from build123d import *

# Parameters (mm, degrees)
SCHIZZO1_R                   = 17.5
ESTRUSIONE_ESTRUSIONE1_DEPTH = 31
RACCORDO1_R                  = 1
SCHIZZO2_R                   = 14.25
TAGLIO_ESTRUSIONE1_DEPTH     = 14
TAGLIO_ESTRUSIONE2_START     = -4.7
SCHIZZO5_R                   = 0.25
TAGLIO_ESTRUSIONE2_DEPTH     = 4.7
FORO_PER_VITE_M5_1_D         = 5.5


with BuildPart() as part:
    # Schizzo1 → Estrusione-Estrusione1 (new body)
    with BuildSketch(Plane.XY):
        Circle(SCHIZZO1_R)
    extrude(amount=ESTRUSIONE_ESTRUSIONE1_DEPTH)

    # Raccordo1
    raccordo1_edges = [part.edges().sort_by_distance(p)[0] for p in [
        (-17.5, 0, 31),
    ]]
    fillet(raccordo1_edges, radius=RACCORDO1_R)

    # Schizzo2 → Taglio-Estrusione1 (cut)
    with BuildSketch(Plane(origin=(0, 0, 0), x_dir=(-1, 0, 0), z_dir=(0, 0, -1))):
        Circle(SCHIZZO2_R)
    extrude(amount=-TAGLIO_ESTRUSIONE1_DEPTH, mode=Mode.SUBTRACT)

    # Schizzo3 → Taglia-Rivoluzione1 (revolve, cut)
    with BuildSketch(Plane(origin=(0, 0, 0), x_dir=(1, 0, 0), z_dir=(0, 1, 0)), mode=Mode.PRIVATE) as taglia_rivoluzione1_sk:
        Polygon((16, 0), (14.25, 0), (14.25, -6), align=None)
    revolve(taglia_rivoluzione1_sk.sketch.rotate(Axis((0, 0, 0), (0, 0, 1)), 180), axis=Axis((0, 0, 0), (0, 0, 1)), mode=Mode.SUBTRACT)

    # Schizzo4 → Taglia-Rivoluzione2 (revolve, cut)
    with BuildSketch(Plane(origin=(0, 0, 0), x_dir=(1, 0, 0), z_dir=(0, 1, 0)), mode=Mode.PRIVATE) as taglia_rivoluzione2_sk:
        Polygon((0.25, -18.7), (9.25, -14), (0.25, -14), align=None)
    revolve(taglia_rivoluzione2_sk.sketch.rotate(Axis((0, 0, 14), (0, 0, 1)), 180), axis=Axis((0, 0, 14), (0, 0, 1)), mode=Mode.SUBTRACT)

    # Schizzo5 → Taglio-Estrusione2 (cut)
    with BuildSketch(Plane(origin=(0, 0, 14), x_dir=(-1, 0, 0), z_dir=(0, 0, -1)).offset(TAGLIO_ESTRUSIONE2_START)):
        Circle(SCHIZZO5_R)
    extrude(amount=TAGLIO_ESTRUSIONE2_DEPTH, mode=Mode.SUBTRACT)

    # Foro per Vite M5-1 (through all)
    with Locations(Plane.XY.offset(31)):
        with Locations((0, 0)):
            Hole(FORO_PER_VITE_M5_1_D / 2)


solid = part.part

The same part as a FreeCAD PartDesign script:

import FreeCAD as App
import Part
import Sketcher

V = App.Vector


def edges_at(feature, points):
    """Names of the edges that pass closest to the given points."""
    edges = feature.Shape.Edges
    near = lambda p: min(range(len(edges)), key=lambda i: edges[i].distToShape(Part.Vertex(*p))[0])
    return sorted({f"Edge{near(p) + 1}" for p in points})


def add_polygon(sketch, points):
    """Adds a closed chain of lines whose ends are joined by coincident constraints."""
    first, n = sketch.GeometryCount, len(points)
    for a, b in zip(points, points[1:] + points[:1]):
        sketch.addGeometry(Part.LineSegment(App.Vector(*a, 0), App.Vector(*b, 0)), False)
    for i in range(n):
        sketch.addConstraint(Sketcher.Constraint("Coincident", first + i, 2, first + (i + 1) % n, 1))

doc = App.newDocument("Part")
body = doc.addObject("PartDesign::Body", "Body")

# Sketch on XY plane
sketch1 = doc.addObject("Sketcher::SketchObject", "Sketch")
body.addObject(sketch1)
sketch1.AttachmentSupport = (doc.XY_Plane, [""])
sketch1.MapMode = "FlatFace"
sketch1.addGeometry(Part.Circle(V(0, 0, 0), V(0, 0, 1), 18), False)
sketch1.addConstraint([
    Sketcher.Constraint("Coincident", 0, 3, -1, 1),
    Sketcher.Constraint("Diameter", 0, 35.0),
])
pad1 = doc.addObject("PartDesign::Pad", "Pad")
body.addObject(pad1)
pad1.Profile = sketch1
pad1.Length = 31
doc.recompute()

fillet = doc.addObject("PartDesign::Fillet", "Fillet")
body.addObject(fillet)
fillet.Base = (pad1, edges_at(pad1, [(-17.5, 0, 31)]))
fillet.Radius = 1

# Sketch on XY plane
sketch2 = doc.addObject("Sketcher::SketchObject", "Sketch001")
body.addObject(sketch2)
sketch2.AttachmentSupport = (doc.XY_Plane, [""])
sketch2.MapMode = "FlatFace"
sketch2.addGeometry(Part.Circle(V(0, 0, 0), V(0, 0, 1), 14), False)
sketch2.addConstraint([
    Sketcher.Constraint("Coincident", 0, 3, -1, 1),
    Sketcher.Constraint("Diameter", 0, 28.5),
])
pocket1 = doc.addObject("PartDesign::Pocket", "Pocket")
body.addObject(pocket1)
pocket1.Profile = sketch2
pocket1.Length = 14
pocket1.Reversed = True

# Sketch on XZ plane
sketch3 = doc.addObject("Sketcher::SketchObject", "Sketch002")
body.addObject(sketch3)
sketch3.AttachmentSupport = (doc.XZ_Plane, [""])
sketch3.MapMode = "FlatFace"
add_polygon(sketch3, [(16, 0), (14.2, 0), (14.2, 6)])  # lines 0-2
sketch3.addConstraint([
    Sketcher.Constraint("Horizontal", 0),
    Sketcher.Constraint("Vertical", 1),
    Sketcher.Constraint("PointOnObject", 0, 2, -1),
    Sketcher.Constraint("DistanceY", 1, 1, 1, 2, 6.0),
    Sketcher.Constraint("DistanceX", -1, 1, 2, 2, 16.0),
    Sketcher.Constraint("DistanceX", 0, 2, 0, 1, 1.75),
])
groove = doc.addObject("PartDesign::Groove", "Groove")
body.addObject(groove)
groove.Profile = sketch3
groove.ReferenceAxis = (sketch3, ["V_Axis"])
groove.Angle = 360

# Sketch on XZ plane
sketch4 = doc.addObject("Sketcher::SketchObject", "Sketch003")
body.addObject(sketch4)
sketch4.AttachmentSupport = (doc.XZ_Plane, [""])
sketch4.MapMode = "FlatFace"
add_polygon(sketch4, [(0.2, 18.7), (9.2, 14), (0.2, 14)])  # lines 0-2
sketch4.addConstraint([
    Sketcher.Constraint("Horizontal", 1),
    Sketcher.Constraint("Vertical", 2),
    Sketcher.Constraint("DistanceX", 1, 2, 1, 1, 9.0),
    Sketcher.Constraint("DistanceY", 2, 1, 2, 2, 4.7),
    Sketcher.Constraint("DistanceY", -1, 1, 0, 2, 14.0),
    Sketcher.Constraint("DistanceX", -1, 1, 0, 2, 9.25),
])
groove2 = doc.addObject("PartDesign::Groove", "Groove001")
body.addObject(groove2)
groove2.Profile = sketch4
groove2.ReferenceAxis = (sketch4, ["V_Axis"])
groove2.Angle = 360

# Sketch on XY plane
sketch5 = doc.addObject("Sketcher::SketchObject", "Sketch004")
body.addObject(sketch5)
sketch5.AttachmentSupport = (doc.XY_Plane, [""])
sketch5.MapMode = "FlatFace"
sketch5.AttachmentOffset = App.Placement(V(0, 0, 18.7), App.Rotation())
sketch5.addGeometry(Part.Circle(V(0, 0, 0), V(0, 0, 1), 0.25), False)
sketch5.addConstraint([
    Sketcher.Constraint("Coincident", 0, 3, -1, 1),
    Sketcher.Constraint("Diameter", 0, 0.5),
])
pocket2 = doc.addObject("PartDesign::Pocket", "Pocket001")
body.addObject(pocket2)
pocket2.Profile = sketch5
pocket2.Length = 4.7

# Sketch on XY plane
sketch6 = doc.addObject("Sketcher::SketchObject", "Sketch005")
body.addObject(sketch6)
sketch6.AttachmentSupport = (doc.XY_Plane, [""])
sketch6.MapMode = "FlatFace"
sketch6.AttachmentOffset = App.Placement(V(0, 0, 31), App.Rotation())
sketch6.addGeometry(Part.Circle(V(0, 0, 0), V(0, 0, 1), 2.8), False)
sketch6.addConstraint([
    Sketcher.Constraint("Coincident", 0, 3, -1, 1),
    Sketcher.Constraint("Diameter", 0, 5.5),
])
doc.recompute()
hole = doc.addObject("PartDesign::Hole", "Hole")
body.addObject(hole)
hole.Profile = sketch6
hole.ThreadType = "None"
hole.Diameter = 5.5
hole.DepthType = "ThroughAll"

doc.recompute()
